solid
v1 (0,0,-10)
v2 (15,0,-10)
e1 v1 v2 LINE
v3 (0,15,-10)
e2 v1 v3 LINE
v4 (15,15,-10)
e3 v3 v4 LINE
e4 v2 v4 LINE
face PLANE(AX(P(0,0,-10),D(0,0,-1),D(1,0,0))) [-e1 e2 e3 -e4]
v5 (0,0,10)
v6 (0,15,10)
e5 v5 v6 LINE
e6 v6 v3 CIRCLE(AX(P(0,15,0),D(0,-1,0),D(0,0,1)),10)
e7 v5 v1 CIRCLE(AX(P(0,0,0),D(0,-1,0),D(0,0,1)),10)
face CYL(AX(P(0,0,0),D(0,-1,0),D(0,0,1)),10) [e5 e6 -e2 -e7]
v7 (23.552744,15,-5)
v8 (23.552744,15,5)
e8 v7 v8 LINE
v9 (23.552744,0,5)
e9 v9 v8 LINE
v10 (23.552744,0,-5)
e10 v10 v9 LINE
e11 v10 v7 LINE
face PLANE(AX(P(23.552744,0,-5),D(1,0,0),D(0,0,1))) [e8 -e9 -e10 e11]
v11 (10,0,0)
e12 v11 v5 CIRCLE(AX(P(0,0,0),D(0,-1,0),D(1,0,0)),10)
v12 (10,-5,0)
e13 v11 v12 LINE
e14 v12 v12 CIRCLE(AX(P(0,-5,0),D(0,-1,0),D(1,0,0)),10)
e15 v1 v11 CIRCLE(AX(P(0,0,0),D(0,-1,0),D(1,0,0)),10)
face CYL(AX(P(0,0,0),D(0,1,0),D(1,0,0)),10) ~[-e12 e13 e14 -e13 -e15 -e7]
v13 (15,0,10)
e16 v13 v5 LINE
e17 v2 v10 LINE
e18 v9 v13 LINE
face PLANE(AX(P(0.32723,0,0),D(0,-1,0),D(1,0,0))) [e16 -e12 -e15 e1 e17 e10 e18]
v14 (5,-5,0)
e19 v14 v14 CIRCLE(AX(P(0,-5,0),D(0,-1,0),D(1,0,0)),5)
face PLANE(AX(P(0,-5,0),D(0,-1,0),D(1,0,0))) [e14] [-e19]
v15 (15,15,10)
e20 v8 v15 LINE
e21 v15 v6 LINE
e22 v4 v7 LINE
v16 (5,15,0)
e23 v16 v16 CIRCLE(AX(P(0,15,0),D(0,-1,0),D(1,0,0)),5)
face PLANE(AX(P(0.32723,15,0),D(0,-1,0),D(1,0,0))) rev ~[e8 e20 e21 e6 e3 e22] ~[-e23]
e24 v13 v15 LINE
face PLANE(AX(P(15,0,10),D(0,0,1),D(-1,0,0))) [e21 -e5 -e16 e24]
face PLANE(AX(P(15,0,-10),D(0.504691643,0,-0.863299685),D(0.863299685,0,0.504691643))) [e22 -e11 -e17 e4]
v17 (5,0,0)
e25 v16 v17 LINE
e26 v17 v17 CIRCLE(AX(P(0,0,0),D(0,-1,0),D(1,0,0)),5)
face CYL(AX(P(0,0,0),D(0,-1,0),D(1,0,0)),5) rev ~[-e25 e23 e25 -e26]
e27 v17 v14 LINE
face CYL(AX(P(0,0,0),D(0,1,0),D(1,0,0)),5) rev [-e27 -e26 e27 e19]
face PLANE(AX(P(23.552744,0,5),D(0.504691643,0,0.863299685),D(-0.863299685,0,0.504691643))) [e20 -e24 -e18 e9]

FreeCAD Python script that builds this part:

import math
import FreeCAD as App
import Part
import Sketcher

V = App.Vector
Q = App.Units.Quantity

doc = App.newDocument("Part")
body = doc.addObject("PartDesign::Body", "Body")

sketch1 = body.newObject("Sketcher::SketchObject", "Sketch")
sketch1.AttachmentSupport = (doc.getObject("XZ_Plane"), [""])
sketch1.MapMode = "FlatFace"
sketch1.addGeometry(Part.Circle(V(0, 0, 0), V(0, 0, 1), 10), False)
sketch1.addGeometry(Part.Circle(V(0, 0, 0), V(0, 0, 1), 5), False)
sketch1.addConstraint(Sketcher.Constraint("Coincident", 0, 3, -1, 1))
sketch1.addConstraint(Sketcher.Constraint("Coincident", 1, 3, -1, 1))
sketch1.addConstraint(Sketcher.Constraint("Diameter", 0, Q("20 mm")))
sketch1.addConstraint(Sketcher.Constraint("Diameter", 1, Q("10 mm")))
pad1 = body.newObject("PartDesign::Pad", "Pad")
pad1.Profile = sketch1
pad1.Length = 5

sketch2 = body.newObject("Sketcher::SketchObject", "Sketch001")
sketch2.AttachmentSupport = (doc.getObject("XZ_Plane"), [""])
sketch2.MapMode = "FlatFace"
sketch2.addGeometry(Part.ArcOfCircle(Part.Circle(V(0, 0, 0), V(0, 0, 1), 10), math.radians(90), math.radians(270)), False)
sketch2.addGeometry(Part.LineSegment(V(0, -10, 0), V(15, -10, 0)), False)
sketch2.addGeometry(Part.LineSegment(V(15, -10, 0), V(23.552744, -5, 0)), False)
sketch2.addGeometry(Part.LineSegment(V(23.552744, -5, 0), V(23.552744, 5, 0)), False)
sketch2.addGeometry(Part.LineSegment(V(23.552744, 5, 0), V(15, 10, 0)), False)
sketch2.addGeometry(Part.LineSegment(V(15, 10, 0), V(0, 10, 0)), False)
sketch2.addConstraint(Sketcher.Constraint("Tangent", 0, 2, 1, 1))
sketch2.addConstraint(Sketcher.Constraint("Coincident", 1, 2, 2, 1))
sketch2.addConstraint(Sketcher.Constraint("Coincident", 2, 2, 3, 1))
sketch2.addConstraint(Sketcher.Constraint("Coincident", 3, 2, 4, 1))
sketch2.addConstraint(Sketcher.Constraint("Coincident", 4, 2, 5, 1))
sketch2.addConstraint(Sketcher.Constraint("Tangent", 5, 2, 0, 1))
sketch2.addConstraint(Sketcher.Constraint("Horizontal", 1))
sketch2.addConstraint(Sketcher.Constraint("Vertical", 3))
sketch2.addConstraint(Sketcher.Constraint("Horizontal", 5))
sketch2.addConstraint(Sketcher.Constraint("Coincident", 0, 3, -1, 1))
sketch2.addConstraint(Sketcher.Constraint("Vertical", 1, 2, 4, 2))
sketch2.addConstraint(Sketcher.Constraint("Equal", 2, 4))
sketch2.addConstraint(Sketcher.Constraint("Radius", 0, Q("10 mm")))
sketch2.addConstraint(Sketcher.Constraint("DistanceX", 1, 1, 1, 2, Q("15 mm")))
sketch2.addConstraint(Sketcher.Constraint("DistanceY", 3, 1, 3, 2, Q("10 mm")))
sketch2.addConstraint(Sketcher.Constraint("Distance", 2, Q("9.907039 mm")))
pad2 = body.newObject("PartDesign::Pad", "Pad001")
pad2.Profile = sketch2
pad2.Length = 15
pad2.Reversed = True

sketch3 = body.newObject("Sketcher::SketchObject", "Sketch002")
sketch3.AttachmentSupport = (doc.getObject("XZ_Plane"), [""])
sketch3.MapMode = "FlatFace"
sketch3.addGeometry(Part.Circle(V(0, 0, 0), V(0, 0, 1), 5), False)
sketch3.addConstraint(Sketcher.Constraint("Coincident", 0, 3, -1, 1))
sketch3.addConstraint(Sketcher.Constraint("Diameter", 0, Q("10 mm")))
pocket1 = body.newObject("PartDesign::Pocket", "Pocket")
pocket1.Profile = sketch3
pocket1.Length = 49.81526
pocket1.Midplane = True

doc.recompute()
